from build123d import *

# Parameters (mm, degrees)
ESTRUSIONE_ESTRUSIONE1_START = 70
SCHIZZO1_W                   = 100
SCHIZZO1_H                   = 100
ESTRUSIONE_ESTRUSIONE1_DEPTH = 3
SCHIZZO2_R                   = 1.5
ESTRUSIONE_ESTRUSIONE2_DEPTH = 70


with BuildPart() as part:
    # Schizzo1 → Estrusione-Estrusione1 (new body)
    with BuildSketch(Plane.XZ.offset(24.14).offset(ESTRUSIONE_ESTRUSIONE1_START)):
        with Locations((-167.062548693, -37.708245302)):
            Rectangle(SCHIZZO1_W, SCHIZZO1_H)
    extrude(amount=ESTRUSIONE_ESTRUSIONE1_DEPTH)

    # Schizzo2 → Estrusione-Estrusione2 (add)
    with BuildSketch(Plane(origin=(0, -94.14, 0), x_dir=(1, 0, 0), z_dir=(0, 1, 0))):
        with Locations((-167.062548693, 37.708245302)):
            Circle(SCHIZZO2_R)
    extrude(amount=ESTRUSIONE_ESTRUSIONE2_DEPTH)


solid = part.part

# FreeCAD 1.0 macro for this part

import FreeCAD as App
import Part
import Sketcher
Q = App.Units.Quantity


def add_polygon(sketch, points):
    """Adds a closed chain of lines whose ends are joined by coincident constraints."""
    first, n = sketch.GeometryCount, len(points)
    for a, b in zip(points, points[1:] + points[:1]):
        sketch.addGeometry(Part.LineSegment(App.Vector(*a, 0), App.Vector(*b, 0)), False)
    for i in range(n):
        sketch.addConstraint(Sketcher.Constraint("Coincident", first + i, 2, first + (i + 1) % n, 1))

doc = App.newDocument("Part")
body = doc.addObject("PartDesign::Body", "Body")

# Sketch on XZ plane
sketch1 = body.newObject("Sketcher::SketchObject", "Sketch")
sketch1.AttachmentSupport = (doc.getObject("XZ_Plane"), [""])
sketch1.MapMode = "FlatFace"
sketch1.AttachmentOffset = App.Placement(App.Vector(0, 0, 94.14), App.Rotation())
add_polygon(sketch1, [(-217, 12), (-217, -88), (-117, -88), (-117, 12)])  # lines 0-3
sketch1.addConstraint(Sketcher.Constraint("Vertical", 0))
sketch1.addConstraint(Sketcher.Constraint("Horizontal", 1))
sketch1.addConstraint(Sketcher.Constraint("Vertical", 2))
sketch1.addConstraint(Sketcher.Constraint("Horizontal", 3))
sketch1.addConstraint(Sketcher.Constraint("Equal", 3, 0))
sketch1.addConstraint(Sketcher.Constraint("DistanceX", 1, 1, 1, 2, Q("100 mm")))
sketch1.addConstraint(Sketcher.Constraint("DistanceX", 0, 2, -1, 1, Q("217.062549 mm")))
sketch1.addConstraint(Sketcher.Constraint("DistanceY", 0, 2, -1, 1, Q("87.708245 mm")))
pad1 = body.newObject("PartDesign::Pad", "Pad")
pad1.Profile = sketch1
pad1.Length = 3

# Sketch on XZ plane
sketch2 = body.newObject("Sketcher::SketchObject", "Sketch001")
sketch2.AttachmentSupport = (doc.getObject("XZ_Plane"), [""])
sketch2.MapMode = "FlatFace"
sketch2.AttachmentOffset = App.Placement(App.Vector(0, 0, 94.14), App.Rotation())
sketch2.addGeometry(Part.Circle(App.Vector(-167.1, -37.7, 0), App.Vector(0, 0, 1), 1.5), False)
sketch2.addConstraint(Sketcher.Constraint("Diameter", 0, Q("3 mm")))
sketch2.addConstraint(Sketcher.Constraint("DistanceX", 0, 3, -1, 1, Q("167.062549 mm")))
sketch2.addConstraint(Sketcher.Constraint("DistanceY", 0, 3, -1, 1, Q("37.708245 mm")))
pad2 = body.newObject("PartDesign::Pad", "Pad001")
pad2.Profile = sketch2
pad2.Length = 70
pad2.Reversed = True

doc.recompute()
